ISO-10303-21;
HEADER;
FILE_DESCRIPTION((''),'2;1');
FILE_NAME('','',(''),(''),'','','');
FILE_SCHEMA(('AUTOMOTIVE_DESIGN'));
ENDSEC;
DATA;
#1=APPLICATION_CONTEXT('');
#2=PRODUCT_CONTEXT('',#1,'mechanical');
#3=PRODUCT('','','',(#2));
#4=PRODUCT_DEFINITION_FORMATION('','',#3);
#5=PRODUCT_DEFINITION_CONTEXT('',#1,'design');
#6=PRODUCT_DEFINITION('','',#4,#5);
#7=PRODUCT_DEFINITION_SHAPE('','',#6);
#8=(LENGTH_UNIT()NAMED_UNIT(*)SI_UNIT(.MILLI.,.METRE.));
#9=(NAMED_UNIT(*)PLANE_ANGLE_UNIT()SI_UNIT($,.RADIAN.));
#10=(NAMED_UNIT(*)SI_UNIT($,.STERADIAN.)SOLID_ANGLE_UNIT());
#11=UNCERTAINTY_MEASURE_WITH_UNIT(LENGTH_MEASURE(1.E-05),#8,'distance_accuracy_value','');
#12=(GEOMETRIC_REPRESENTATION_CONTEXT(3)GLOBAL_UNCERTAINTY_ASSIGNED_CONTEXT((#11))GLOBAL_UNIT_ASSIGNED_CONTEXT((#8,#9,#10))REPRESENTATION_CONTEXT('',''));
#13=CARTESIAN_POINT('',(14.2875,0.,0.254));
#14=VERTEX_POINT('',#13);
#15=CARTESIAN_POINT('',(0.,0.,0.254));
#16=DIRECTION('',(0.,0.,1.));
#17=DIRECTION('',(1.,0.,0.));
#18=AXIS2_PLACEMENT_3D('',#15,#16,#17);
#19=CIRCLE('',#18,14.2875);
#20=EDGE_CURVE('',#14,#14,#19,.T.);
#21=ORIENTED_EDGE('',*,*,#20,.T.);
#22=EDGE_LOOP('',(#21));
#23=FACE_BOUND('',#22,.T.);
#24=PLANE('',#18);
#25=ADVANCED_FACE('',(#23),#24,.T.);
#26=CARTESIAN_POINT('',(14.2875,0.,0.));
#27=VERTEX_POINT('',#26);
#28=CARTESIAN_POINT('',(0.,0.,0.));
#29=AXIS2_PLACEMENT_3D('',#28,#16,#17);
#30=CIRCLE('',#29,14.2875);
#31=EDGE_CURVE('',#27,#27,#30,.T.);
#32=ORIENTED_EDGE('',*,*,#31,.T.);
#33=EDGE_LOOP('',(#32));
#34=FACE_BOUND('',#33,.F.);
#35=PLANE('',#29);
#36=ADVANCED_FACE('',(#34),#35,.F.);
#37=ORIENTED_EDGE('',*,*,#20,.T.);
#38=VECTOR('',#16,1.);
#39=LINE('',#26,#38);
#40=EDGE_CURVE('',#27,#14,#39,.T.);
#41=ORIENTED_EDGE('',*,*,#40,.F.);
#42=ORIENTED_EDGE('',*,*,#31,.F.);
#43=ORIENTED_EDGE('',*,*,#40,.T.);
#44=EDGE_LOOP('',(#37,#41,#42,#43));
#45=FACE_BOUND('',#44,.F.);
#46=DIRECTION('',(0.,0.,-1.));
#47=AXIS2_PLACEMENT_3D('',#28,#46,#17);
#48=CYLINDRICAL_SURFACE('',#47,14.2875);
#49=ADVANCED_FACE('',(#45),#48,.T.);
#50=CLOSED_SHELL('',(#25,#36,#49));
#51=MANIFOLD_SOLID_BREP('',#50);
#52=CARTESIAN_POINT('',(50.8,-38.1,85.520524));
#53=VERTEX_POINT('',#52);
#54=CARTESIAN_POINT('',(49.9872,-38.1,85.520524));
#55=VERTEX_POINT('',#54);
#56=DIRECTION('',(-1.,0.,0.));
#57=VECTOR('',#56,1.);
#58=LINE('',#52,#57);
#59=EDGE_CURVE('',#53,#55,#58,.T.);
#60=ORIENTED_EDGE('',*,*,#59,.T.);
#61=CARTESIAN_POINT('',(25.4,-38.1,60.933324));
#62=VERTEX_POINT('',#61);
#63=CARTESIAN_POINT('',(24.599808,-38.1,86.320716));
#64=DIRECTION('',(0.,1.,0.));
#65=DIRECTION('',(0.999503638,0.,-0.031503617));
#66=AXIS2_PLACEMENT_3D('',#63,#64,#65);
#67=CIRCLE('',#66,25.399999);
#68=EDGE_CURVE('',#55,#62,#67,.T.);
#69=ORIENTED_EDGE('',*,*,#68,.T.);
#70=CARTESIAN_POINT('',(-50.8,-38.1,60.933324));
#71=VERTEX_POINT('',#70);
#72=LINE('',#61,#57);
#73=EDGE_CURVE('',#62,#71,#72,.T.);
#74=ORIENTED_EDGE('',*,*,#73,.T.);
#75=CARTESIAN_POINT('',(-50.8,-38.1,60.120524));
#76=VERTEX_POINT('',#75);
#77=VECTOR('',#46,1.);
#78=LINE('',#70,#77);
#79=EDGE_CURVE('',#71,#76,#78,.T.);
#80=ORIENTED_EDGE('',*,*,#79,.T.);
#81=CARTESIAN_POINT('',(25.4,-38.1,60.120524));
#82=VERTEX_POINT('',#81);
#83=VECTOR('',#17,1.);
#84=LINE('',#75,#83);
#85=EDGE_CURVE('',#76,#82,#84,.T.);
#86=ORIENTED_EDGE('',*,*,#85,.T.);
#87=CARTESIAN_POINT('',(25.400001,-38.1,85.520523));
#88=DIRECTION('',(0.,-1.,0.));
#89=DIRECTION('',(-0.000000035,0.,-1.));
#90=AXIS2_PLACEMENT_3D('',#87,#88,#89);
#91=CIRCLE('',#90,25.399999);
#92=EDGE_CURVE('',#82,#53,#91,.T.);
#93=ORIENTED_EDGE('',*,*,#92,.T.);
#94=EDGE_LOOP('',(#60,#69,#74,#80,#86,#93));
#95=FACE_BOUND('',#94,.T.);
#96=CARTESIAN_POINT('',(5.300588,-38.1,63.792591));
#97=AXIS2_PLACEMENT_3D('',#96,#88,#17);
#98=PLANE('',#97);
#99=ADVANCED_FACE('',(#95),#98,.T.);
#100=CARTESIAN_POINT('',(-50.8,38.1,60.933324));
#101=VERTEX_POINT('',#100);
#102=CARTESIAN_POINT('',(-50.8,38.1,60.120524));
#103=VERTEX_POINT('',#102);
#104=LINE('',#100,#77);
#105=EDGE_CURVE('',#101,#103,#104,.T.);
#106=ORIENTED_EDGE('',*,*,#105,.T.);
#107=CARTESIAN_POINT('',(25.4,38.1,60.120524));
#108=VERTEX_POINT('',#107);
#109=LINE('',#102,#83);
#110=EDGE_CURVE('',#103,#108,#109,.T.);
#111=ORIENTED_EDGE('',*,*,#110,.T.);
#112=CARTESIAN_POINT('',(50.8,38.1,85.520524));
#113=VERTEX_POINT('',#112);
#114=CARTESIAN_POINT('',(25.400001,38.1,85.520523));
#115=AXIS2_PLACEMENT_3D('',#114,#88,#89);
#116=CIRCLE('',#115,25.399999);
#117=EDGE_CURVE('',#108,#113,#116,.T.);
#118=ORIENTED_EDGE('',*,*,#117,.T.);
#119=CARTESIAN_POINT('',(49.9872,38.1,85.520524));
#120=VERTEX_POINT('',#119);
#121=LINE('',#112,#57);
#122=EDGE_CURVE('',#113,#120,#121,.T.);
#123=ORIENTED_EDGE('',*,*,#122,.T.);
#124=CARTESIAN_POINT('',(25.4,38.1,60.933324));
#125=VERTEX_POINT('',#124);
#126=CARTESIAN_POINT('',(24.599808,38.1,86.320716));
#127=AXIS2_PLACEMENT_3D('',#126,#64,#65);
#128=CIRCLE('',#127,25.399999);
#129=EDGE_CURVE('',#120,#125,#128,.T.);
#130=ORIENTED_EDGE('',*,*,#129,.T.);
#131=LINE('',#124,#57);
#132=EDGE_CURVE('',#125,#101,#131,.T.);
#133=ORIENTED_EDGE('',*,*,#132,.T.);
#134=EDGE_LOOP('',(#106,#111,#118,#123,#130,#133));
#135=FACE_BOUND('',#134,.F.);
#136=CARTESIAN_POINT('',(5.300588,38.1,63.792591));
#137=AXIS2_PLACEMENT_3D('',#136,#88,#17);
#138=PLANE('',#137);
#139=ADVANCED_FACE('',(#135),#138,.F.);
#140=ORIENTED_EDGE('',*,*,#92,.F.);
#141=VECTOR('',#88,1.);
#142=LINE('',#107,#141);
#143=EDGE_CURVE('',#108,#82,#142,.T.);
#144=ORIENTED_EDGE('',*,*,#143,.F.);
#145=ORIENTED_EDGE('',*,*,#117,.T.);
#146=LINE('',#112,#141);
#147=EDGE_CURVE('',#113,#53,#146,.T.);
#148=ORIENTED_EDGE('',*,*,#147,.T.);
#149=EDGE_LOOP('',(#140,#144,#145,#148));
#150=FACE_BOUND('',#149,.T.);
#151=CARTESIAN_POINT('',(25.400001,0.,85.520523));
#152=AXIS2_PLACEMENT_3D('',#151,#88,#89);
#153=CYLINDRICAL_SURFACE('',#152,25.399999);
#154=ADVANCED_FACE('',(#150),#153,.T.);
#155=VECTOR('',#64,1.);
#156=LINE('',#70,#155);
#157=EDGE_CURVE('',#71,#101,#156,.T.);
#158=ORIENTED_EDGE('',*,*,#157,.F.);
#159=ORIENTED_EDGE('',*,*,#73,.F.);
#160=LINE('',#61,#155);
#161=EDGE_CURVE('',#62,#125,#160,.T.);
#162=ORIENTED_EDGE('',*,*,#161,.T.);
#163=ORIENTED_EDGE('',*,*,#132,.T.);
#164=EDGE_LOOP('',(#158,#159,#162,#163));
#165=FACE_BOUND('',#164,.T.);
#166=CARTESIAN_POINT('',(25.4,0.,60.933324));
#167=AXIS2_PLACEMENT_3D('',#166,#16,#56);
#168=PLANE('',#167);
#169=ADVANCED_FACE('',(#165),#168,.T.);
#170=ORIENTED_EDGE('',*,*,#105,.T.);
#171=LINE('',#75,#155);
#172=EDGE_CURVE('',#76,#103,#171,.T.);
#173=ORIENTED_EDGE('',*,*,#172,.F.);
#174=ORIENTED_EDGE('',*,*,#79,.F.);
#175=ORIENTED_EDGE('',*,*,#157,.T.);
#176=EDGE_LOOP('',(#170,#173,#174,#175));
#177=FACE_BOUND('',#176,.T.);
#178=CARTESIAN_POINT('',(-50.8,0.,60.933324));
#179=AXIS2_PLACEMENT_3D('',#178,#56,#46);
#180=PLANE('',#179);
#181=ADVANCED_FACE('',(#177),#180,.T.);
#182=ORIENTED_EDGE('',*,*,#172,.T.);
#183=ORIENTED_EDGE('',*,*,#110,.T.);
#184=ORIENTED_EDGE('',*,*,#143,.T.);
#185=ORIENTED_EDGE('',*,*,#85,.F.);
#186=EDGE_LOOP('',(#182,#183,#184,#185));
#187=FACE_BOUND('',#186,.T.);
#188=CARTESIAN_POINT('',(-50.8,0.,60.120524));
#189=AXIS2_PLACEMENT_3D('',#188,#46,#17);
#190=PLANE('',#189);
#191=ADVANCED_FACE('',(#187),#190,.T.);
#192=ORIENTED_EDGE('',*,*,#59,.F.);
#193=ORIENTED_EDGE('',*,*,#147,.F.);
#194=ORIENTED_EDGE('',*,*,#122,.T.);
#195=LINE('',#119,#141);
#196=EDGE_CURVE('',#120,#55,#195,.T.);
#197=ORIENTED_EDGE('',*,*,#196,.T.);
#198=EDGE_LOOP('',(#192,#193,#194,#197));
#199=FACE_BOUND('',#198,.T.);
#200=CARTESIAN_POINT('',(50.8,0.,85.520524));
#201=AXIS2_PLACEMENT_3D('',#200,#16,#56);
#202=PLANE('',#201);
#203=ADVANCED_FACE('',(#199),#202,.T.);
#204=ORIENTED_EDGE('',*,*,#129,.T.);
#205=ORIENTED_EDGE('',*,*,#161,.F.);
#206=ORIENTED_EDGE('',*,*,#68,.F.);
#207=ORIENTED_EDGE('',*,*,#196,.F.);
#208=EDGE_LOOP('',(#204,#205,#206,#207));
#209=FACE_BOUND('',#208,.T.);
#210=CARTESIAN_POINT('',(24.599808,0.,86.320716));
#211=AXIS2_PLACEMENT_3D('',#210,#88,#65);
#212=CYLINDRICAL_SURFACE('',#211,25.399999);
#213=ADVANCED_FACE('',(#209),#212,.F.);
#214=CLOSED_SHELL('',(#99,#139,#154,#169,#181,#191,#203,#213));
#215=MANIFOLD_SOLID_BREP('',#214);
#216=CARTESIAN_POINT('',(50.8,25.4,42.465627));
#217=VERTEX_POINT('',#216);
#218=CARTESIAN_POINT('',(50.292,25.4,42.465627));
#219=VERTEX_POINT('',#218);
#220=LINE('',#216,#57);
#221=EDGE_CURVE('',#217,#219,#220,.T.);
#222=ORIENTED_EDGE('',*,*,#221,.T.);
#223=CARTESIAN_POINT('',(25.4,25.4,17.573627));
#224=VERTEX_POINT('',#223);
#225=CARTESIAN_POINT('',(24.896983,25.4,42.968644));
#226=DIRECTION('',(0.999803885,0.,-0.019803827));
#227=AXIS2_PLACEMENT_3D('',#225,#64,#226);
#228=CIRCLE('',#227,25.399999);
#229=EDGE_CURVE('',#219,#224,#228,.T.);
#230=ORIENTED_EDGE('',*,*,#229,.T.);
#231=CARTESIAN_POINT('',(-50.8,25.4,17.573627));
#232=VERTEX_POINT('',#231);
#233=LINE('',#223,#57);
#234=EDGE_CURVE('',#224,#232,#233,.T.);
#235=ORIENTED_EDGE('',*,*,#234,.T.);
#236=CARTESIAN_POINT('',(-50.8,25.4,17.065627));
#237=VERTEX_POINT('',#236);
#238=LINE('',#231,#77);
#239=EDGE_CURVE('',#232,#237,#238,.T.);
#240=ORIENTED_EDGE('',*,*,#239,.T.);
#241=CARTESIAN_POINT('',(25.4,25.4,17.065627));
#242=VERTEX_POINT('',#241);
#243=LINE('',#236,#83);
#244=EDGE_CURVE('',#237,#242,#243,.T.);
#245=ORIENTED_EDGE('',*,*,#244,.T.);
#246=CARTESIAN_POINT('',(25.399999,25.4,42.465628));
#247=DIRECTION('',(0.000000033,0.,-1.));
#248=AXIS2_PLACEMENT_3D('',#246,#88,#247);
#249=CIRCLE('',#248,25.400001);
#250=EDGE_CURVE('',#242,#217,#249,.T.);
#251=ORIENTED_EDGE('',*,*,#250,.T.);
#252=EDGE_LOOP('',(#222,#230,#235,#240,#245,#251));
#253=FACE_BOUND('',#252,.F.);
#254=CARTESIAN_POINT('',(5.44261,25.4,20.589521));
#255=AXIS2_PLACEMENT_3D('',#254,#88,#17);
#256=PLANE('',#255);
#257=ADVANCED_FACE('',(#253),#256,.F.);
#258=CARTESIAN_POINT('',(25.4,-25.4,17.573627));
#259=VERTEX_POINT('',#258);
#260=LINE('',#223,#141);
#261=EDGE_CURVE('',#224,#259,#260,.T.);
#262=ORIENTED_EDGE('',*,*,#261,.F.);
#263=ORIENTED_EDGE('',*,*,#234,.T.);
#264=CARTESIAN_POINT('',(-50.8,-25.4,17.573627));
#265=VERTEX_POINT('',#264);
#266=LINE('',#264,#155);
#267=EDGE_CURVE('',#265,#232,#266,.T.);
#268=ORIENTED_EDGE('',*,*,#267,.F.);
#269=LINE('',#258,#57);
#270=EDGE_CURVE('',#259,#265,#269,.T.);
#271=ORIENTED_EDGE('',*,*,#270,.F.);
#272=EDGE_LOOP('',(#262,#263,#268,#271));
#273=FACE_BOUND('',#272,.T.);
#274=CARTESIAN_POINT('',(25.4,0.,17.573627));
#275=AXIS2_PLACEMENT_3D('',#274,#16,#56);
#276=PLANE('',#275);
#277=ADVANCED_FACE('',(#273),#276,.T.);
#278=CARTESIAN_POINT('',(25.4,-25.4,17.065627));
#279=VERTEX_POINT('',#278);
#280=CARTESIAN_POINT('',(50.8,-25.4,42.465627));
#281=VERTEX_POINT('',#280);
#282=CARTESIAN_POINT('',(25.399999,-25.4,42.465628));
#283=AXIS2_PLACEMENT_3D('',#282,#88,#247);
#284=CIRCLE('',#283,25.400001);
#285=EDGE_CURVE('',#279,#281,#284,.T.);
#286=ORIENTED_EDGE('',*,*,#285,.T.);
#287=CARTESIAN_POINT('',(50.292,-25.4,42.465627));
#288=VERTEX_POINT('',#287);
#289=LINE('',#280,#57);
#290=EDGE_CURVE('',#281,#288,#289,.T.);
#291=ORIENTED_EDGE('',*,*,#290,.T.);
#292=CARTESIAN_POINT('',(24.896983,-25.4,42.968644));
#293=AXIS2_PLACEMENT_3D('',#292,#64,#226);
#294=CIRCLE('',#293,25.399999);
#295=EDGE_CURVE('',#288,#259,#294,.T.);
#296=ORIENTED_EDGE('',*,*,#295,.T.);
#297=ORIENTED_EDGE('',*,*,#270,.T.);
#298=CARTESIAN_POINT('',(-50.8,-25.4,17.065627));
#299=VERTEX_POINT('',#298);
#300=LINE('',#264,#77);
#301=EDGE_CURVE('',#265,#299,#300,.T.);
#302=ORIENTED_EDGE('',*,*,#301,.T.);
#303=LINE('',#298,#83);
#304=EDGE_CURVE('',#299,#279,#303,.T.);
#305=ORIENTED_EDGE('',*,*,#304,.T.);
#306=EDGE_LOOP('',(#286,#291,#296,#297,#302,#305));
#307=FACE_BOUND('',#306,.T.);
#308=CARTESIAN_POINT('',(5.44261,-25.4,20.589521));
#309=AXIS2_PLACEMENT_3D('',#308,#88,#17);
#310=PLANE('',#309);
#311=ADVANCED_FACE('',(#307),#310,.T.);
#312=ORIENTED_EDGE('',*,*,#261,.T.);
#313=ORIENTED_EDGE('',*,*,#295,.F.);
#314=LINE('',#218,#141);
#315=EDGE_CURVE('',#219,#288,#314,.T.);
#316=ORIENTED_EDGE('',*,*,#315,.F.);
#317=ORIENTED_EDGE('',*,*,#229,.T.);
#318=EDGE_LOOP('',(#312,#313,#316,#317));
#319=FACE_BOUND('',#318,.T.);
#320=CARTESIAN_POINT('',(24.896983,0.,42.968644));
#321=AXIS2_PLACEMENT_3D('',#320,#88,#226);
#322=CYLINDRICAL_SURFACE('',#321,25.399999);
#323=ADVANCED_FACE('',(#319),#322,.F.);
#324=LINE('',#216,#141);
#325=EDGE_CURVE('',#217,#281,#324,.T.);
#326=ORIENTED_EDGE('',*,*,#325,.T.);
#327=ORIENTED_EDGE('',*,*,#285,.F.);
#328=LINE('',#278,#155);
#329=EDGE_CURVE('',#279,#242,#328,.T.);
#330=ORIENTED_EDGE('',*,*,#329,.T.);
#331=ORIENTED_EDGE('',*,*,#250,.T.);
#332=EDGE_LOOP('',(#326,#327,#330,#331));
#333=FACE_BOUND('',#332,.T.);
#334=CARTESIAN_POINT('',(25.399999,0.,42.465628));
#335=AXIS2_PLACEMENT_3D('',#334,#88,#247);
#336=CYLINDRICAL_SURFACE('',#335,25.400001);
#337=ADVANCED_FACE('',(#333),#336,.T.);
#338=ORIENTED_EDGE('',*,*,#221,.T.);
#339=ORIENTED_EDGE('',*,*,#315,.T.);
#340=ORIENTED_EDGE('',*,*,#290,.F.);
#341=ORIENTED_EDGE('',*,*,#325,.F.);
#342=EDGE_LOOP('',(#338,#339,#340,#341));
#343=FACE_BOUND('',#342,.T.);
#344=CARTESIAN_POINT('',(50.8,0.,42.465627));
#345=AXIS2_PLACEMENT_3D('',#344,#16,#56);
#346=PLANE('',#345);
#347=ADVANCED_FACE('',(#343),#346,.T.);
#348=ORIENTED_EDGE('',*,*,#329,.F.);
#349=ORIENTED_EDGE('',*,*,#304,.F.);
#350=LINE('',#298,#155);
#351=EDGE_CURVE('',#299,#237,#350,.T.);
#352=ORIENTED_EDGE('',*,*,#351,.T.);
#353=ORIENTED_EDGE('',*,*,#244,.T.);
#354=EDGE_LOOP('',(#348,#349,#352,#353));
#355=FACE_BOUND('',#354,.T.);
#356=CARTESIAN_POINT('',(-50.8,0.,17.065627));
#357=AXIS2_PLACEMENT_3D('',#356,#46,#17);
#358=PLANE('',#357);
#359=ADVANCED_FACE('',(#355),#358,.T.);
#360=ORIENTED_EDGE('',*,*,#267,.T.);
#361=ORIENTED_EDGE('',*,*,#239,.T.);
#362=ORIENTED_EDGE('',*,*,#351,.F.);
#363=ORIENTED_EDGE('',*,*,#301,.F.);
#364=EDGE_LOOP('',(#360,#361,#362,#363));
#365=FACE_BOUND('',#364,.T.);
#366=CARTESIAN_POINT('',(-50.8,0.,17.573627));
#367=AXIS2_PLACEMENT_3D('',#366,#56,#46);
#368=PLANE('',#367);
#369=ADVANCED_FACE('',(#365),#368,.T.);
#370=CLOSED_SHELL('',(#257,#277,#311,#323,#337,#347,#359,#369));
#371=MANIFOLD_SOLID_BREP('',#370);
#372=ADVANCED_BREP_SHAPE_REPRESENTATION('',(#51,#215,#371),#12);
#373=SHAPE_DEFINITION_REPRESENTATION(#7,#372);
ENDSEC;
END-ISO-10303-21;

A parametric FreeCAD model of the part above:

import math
import FreeCAD as App
import Part
import Sketcher
from FreeCAD import Vector
Q = App.Units.Quantity

doc = App.newDocument("Part")
body = doc.addObject("PartDesign::Body", "Body")

# Sketch on XY plane
sketch1 = body.newObject("Sketcher::SketchObject", "Sketch")
sketch1.AttachmentSupport = (doc.getObject("XY_Plane"), [""])
sketch1.MapMode = "FlatFace"
sketch1.addGeometry(Part.Circle(Vector(0, 0, 0), Vector(0, 0, 1), 14), False)
sketch1.addConstraint([
    Sketcher.Constraint("Coincident", 0, 3, -1, 1),
    Sketcher.Constraint("Diameter", 0, Q("1.125 in")),
])
pad1 = body.newObject("PartDesign::Pad", "Pad")
pad1.Profile = sketch1
pad1.Length = Q("0.01 in")
body2 = doc.addObject("PartDesign::Body", "Body001")

# Sketch on XZ plane
sketch2 = body2.newObject("Sketcher::SketchObject", "Sketch001")
sketch2.AttachmentSupport = (doc.getObject("XZ_Plane001"), [""])
sketch2.MapMode = "FlatFace"
sketch2.addGeometry([
    Part.ArcOfCircle(Part.Circle(Vector(25.4, 42.5, 0), Vector(0, 0, 1), 25.4), math.radians(-90), math.radians(0)),  # 0
    Part.LineSegment(Vector(50.8, 42.5, 0), Vector(50.3, 42.5, 0)),  # 1
    Part.ArcOfCircle(Part.Circle(Vector(24.9, 43, 0), Vector(0, 0, 1), 25.4), math.radians(-89), math.radians(-1)),  # 2
    Part.LineSegment(Vector(25.4, 17.6, 0), Vector(-50.8, 17.6, 0)),  # 3
    Part.LineSegment(Vector(-50.8, 17.6, 0), Vector(-50.8, 17.1, 0)),  # 4
    Part.LineSegment(Vector(-50.8, 17.1, 0), Vector(25.4, 17.1, 0)),  # 5
], False)
sketch2.addConstraint([
    Sketcher.Constraint("Coincident", 0, 2, 1, 1),
    Sketcher.Constraint("Coincident", 1, 2, 2, 2),
    Sketcher.Constraint("Coincident", 2, 1, 3, 1),
    Sketcher.Constraint("Coincident", 3, 2, 4, 1),
    Sketcher.Constraint("Coincident", 4, 2, 5, 1),
    Sketcher.Constraint("Tangent", 5, 2, 0, 1),
    Sketcher.Constraint("Horizontal", 1),
    Sketcher.Constraint("Horizontal", 3),
    Sketcher.Constraint("Vertical", 4),
    Sketcher.Constraint("Horizontal", 5),
    Sketcher.Constraint("Vertical", 0, 3, 2, 1),
    Sketcher.Constraint("Equal", 1, 4),
    Sketcher.Constraint("Radius", 0, Q("1 in")),
    Sketcher.Constraint("Radius", 2, Q("0.9999999 in")),
    Sketcher.Constraint("DistanceX", 3, 2, 3, 1, Q("3 in")),
    Sketcher.Constraint("DistanceX", -1, 1, 0, 3, Q("1 in")),
    Sketcher.Constraint("DistanceY", 4, 2, 1, 2, Q("1 in")),
    Sketcher.Constraint("DistanceX", 1, 2, 1, 1, Q("0.02 in")),
    Sketcher.Constraint("DistanceY", -1, 1, 0, 3, Q("1.6718751 in")),
])
pad2 = body2.newObject("PartDesign::Pad", "Pad001")
pad2.Profile = sketch2
pad2.Length = Q("2 in")
pad2.Midplane = True
body3 = doc.addObject("PartDesign::Body", "Body002")

# Sketch on XZ plane
sketch3 = body3.newObject("Sketcher::SketchObject", "Sketch002")
sketch3.AttachmentSupport = (doc.getObject("XZ_Plane002"), [""])
sketch3.MapMode = "FlatFace"
sketch3.addGeometry([
    Part.LineSegment(Vector(-50.8, 60.1, 0), Vector(25.4, 60.1, 0)),  # 0
    Part.ArcOfCircle(Part.Circle(Vector(25.4, 85.5, 0), Vector(0, 0, 1), 25.4), math.radians(-90), math.radians(0)),  # 1
    Part.LineSegment(Vector(50.8, 85.5, 0), Vector(50, 85.5, 0)),  # 2
    Part.ArcOfCircle(Part.Circle(Vector(24.6, 86.3, 0), Vector(0, 0, 1), 25.4), math.radians(-88), math.radians(-2)),  # 3
    Part.LineSegment(Vector(25.4, 60.9, 0), Vector(-50.8, 60.9, 0)),  # 4
    Part.LineSegment(Vector(-50.8, 60.9, 0), Vector(-50.8, 60.1, 0)),  # 5
], False)
sketch3.addConstraint([
    Sketcher.Constraint("Tangent", 0, 2, 1, 1),
    Sketcher.Constraint("Coincident", 1, 2, 2, 1),
    Sketcher.Constraint("Coincident", 2, 2, 3, 2),
    Sketcher.Constraint("Coincident", 3, 1, 4, 1),
    Sketcher.Constraint("Coincident", 4, 2, 5, 1),
    Sketcher.Constraint("Coincident", 5, 2, 0, 1),
    Sketcher.Constraint("Horizontal", 0),
    Sketcher.Constraint("Horizontal", 2),
    Sketcher.Constraint("Horizontal", 4),
    Sketcher.Constraint("Vertical", 5),
    Sketcher.Constraint("Equal", 1, 3),
    Sketcher.Constraint("Vertical", 0, 2, 3, 1),
    Sketcher.Constraint("Equal", 2, 5),
    Sketcher.Constraint("Radius", 1, Q("1 in")),
    Sketcher.Constraint("DistanceX", 0, 1, 0, 2, Q("3 in")),
    Sketcher.Constraint("DistanceX", -1, 1, 1, 3, Q("1 in")),
    Sketcher.Constraint("DistanceY", 0, 2, 1, 2, Q("1 in")),
    Sketcher.Constraint("DistanceX", 2, 2, 2, 1, Q("0.032 in")),
    Sketcher.Constraint("DistanceY", -1, 1, 1, 3, Q("85.520523 mm")),
])
pad3 = body3.newObject("PartDesign::Pad", "Pad002")
pad3.Profile = sketch3
pad3.Length = Q("3 in")
pad3.Midplane = True

doc.recompute()
